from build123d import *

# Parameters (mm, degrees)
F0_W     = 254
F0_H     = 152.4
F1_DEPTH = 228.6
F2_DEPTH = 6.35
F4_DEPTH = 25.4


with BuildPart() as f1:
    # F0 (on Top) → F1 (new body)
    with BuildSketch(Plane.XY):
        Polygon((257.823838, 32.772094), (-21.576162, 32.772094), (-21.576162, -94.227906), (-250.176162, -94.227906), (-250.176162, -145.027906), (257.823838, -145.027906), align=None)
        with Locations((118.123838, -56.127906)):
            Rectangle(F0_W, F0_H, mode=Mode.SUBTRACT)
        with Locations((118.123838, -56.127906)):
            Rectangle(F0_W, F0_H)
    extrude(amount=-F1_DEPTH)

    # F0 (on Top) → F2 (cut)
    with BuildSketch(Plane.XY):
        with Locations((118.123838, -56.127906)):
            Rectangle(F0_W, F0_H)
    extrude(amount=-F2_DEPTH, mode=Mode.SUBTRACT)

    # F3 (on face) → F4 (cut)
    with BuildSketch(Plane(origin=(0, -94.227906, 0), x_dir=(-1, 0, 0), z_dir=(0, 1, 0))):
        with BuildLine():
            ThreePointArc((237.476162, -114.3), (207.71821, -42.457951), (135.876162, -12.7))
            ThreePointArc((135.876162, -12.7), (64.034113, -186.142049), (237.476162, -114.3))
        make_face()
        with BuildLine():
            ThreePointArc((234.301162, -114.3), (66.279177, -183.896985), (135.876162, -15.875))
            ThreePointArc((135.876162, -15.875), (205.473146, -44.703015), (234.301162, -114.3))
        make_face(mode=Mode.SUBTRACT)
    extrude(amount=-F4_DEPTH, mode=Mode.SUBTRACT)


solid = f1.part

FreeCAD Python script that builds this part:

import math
import FreeCAD as App
import Part
import Sketcher
from FreeCAD import Vector
Q = App.Units.Quantity


def add_polygon(sketch, points):
    """Adds a closed chain of lines whose ends are joined by coincident constraints."""
    first, n = sketch.GeometryCount, len(points)
    for a, b in zip(points, points[1:] + points[:1]):
        sketch.addGeometry(Part.LineSegment(App.Vector(*a, 0), App.Vector(*b, 0)), False)
    for i in range(n):
        sketch.addConstraint(Sketcher.Constraint("Coincident", first + i, 2, first + (i + 1) % n, 1))

doc = App.newDocument("Part")
body = doc.addObject("PartDesign::Body", "Body")

sketch1 = doc.addObject("Sketcher::SketchObject", "Sketch")
body.addObject(sketch1)
sketch1.AttachmentSupport = (doc.XY_Plane, [""])
sketch1.MapMode = "FlatFace"
add_polygon(sketch1, [(258, 33), (-22, 33), (-22, -94), (-250, -94), (-250, -145), (258, -145)])
sketch1.addConstraint(Sketcher.Constraint("Horizontal", 0))
sketch1.addConstraint(Sketcher.Constraint("Vertical", 1))
sketch1.addConstraint(Sketcher.Constraint("Horizontal", 2))
sketch1.addConstraint(Sketcher.Constraint("Vertical", 3))
sketch1.addConstraint(Sketcher.Constraint("Horizontal", 4))
sketch1.addConstraint(Sketcher.Constraint("Vertical", 5))
sketch1.addConstraint(Sketcher.Constraint("DistanceX", 0, 2, 0, 1, Q("11 in")))
sketch1.addConstraint(Sketcher.Constraint("DistanceX", 2, 2, 2, 1, Q("9 in")))
sketch1.addConstraint(Sketcher.Constraint("DistanceY", 1, 2, 1, 1, Q("5 in")))
sketch1.addConstraint(Sketcher.Constraint("DistanceY", 3, 2, 3, 1, Q("2 in")))
sketch1.addConstraint(Sketcher.Constraint("DistanceX", 0, 2, -1, 1, 21.576162))
sketch1.addConstraint(Sketcher.Constraint("DistanceY", -1, 1, 0, 2, 32.772094))
pad1 = doc.addObject("PartDesign::Pad", "Pad")
body.addObject(pad1)
pad1.Profile = sketch1
pad1.Length = Q("9 in")
pad1.Reversed = True

sketch2 = doc.addObject("Sketcher::SketchObject", "Sketch001")
body.addObject(sketch2)
sketch2.AttachmentSupport = (doc.XY_Plane, [""])
sketch2.MapMode = "FlatFace"
add_polygon(sketch2, [(-9, 20), (-9, -132), (245, -132), (245, 20)])
sketch2.addConstraint(Sketcher.Constraint("Vertical", 0))
sketch2.addConstraint(Sketcher.Constraint("Horizontal", 1))
sketch2.addConstraint(Sketcher.Constraint("Vertical", 2))
sketch2.addConstraint(Sketcher.Constraint("Horizontal", 3))
sketch2.addConstraint(Sketcher.Constraint("DistanceX", 1, 1, 1, 2, Q("10 in")))
sketch2.addConstraint(Sketcher.Constraint("DistanceY", 0, 2, 0, 1, Q("6 in")))
sketch2.addConstraint(Sketcher.Constraint("DistanceX", -1, 1, 1, 2, 245.123838))
sketch2.addConstraint(Sketcher.Constraint("DistanceY", 0, 2, -1, 1, 132.327906))
pocket1 = doc.addObject("PartDesign::Pocket", "Pocket")
body.addObject(pocket1)
pocket1.Profile = sketch2
pocket1.Length = Q("0.25 in")

sketch3 = doc.addObject("Sketcher::SketchObject", "Sketch002")
body.addObject(sketch3)
sketch3.AttachmentSupport = (doc.XZ_Plane, [""])
sketch3.MapMode = "FlatFace"
sketch3.AttachmentOffset = App.Placement(Vector(0, 0, 94.227906), App.Rotation())
sketch3.addGeometry(Part.ArcOfCircle(Part.Circle(Vector(-136, -114, 0), Vector(0, 0, 1), 102), math.radians(90), math.radians(180)), False)
sketch3.addGeometry(Part.ArcOfCircle(Part.Circle(Vector(-136, -114, 0), Vector(0, 0, 1), 102), math.radians(180), math.radians(450)), False)
sketch3.addGeometry(Part.ArcOfCircle(Part.Circle(Vector(-136, -114, 0), Vector(0, 0, 1), 98), math.radians(90), math.radians(180)), False)
sketch3.addGeometry(Part.ArcOfCircle(Part.Circle(Vector(-136, -114, 0), Vector(0, 0, 1), 98), math.radians(180), math.radians(450)), False)
sketch3.addConstraint(Sketcher.Constraint("Tangent", 0, 1, 1, 2))
sketch3.addConstraint(Sketcher.Constraint("Coincident", 1, 1, 0, 2))
sketch3.addConstraint(Sketcher.Constraint("Tangent", 2, 1, 3, 2))
sketch3.addConstraint(Sketcher.Constraint("Coincident", 3, 1, 2, 2))
sketch3.addConstraint(Sketcher.Constraint("Coincident", 2, 3, 0, 3))
sketch3.addConstraint(Sketcher.Constraint("Horizontal", 3, 3, 1, 1))
sketch3.addConstraint(Sketcher.Constraint("Horizontal", 1, 1, 3, 1))
sketch3.addConstraint(Sketcher.Constraint("Vertical", 3, 3, 0, 1))
sketch3.addConstraint(Sketcher.Constraint("Vertical", 0, 1, 2, 1))
sketch3.addConstraint(Sketcher.Constraint("Radius", 0, Q("4.0000001 in")))
sketch3.addConstraint(Sketcher.Constraint("Radius", 2, Q("3.8750001 in")))
sketch3.addConstraint(Sketcher.Constraint("DistanceY", 0, 3, -1, 1, Q("4.5000001 in")))
sketch3.addConstraint(Sketcher.Constraint("DistanceX", 0, 3, -1, 1, 135.87616))
pocket2 = doc.addObject("PartDesign::Pocket", "Pocket001")
body.addObject(pocket2)
pocket2.Profile = sketch3
pocket2.Length = Q("1 in")
pocket2.Reversed = True

doc.recompute()
